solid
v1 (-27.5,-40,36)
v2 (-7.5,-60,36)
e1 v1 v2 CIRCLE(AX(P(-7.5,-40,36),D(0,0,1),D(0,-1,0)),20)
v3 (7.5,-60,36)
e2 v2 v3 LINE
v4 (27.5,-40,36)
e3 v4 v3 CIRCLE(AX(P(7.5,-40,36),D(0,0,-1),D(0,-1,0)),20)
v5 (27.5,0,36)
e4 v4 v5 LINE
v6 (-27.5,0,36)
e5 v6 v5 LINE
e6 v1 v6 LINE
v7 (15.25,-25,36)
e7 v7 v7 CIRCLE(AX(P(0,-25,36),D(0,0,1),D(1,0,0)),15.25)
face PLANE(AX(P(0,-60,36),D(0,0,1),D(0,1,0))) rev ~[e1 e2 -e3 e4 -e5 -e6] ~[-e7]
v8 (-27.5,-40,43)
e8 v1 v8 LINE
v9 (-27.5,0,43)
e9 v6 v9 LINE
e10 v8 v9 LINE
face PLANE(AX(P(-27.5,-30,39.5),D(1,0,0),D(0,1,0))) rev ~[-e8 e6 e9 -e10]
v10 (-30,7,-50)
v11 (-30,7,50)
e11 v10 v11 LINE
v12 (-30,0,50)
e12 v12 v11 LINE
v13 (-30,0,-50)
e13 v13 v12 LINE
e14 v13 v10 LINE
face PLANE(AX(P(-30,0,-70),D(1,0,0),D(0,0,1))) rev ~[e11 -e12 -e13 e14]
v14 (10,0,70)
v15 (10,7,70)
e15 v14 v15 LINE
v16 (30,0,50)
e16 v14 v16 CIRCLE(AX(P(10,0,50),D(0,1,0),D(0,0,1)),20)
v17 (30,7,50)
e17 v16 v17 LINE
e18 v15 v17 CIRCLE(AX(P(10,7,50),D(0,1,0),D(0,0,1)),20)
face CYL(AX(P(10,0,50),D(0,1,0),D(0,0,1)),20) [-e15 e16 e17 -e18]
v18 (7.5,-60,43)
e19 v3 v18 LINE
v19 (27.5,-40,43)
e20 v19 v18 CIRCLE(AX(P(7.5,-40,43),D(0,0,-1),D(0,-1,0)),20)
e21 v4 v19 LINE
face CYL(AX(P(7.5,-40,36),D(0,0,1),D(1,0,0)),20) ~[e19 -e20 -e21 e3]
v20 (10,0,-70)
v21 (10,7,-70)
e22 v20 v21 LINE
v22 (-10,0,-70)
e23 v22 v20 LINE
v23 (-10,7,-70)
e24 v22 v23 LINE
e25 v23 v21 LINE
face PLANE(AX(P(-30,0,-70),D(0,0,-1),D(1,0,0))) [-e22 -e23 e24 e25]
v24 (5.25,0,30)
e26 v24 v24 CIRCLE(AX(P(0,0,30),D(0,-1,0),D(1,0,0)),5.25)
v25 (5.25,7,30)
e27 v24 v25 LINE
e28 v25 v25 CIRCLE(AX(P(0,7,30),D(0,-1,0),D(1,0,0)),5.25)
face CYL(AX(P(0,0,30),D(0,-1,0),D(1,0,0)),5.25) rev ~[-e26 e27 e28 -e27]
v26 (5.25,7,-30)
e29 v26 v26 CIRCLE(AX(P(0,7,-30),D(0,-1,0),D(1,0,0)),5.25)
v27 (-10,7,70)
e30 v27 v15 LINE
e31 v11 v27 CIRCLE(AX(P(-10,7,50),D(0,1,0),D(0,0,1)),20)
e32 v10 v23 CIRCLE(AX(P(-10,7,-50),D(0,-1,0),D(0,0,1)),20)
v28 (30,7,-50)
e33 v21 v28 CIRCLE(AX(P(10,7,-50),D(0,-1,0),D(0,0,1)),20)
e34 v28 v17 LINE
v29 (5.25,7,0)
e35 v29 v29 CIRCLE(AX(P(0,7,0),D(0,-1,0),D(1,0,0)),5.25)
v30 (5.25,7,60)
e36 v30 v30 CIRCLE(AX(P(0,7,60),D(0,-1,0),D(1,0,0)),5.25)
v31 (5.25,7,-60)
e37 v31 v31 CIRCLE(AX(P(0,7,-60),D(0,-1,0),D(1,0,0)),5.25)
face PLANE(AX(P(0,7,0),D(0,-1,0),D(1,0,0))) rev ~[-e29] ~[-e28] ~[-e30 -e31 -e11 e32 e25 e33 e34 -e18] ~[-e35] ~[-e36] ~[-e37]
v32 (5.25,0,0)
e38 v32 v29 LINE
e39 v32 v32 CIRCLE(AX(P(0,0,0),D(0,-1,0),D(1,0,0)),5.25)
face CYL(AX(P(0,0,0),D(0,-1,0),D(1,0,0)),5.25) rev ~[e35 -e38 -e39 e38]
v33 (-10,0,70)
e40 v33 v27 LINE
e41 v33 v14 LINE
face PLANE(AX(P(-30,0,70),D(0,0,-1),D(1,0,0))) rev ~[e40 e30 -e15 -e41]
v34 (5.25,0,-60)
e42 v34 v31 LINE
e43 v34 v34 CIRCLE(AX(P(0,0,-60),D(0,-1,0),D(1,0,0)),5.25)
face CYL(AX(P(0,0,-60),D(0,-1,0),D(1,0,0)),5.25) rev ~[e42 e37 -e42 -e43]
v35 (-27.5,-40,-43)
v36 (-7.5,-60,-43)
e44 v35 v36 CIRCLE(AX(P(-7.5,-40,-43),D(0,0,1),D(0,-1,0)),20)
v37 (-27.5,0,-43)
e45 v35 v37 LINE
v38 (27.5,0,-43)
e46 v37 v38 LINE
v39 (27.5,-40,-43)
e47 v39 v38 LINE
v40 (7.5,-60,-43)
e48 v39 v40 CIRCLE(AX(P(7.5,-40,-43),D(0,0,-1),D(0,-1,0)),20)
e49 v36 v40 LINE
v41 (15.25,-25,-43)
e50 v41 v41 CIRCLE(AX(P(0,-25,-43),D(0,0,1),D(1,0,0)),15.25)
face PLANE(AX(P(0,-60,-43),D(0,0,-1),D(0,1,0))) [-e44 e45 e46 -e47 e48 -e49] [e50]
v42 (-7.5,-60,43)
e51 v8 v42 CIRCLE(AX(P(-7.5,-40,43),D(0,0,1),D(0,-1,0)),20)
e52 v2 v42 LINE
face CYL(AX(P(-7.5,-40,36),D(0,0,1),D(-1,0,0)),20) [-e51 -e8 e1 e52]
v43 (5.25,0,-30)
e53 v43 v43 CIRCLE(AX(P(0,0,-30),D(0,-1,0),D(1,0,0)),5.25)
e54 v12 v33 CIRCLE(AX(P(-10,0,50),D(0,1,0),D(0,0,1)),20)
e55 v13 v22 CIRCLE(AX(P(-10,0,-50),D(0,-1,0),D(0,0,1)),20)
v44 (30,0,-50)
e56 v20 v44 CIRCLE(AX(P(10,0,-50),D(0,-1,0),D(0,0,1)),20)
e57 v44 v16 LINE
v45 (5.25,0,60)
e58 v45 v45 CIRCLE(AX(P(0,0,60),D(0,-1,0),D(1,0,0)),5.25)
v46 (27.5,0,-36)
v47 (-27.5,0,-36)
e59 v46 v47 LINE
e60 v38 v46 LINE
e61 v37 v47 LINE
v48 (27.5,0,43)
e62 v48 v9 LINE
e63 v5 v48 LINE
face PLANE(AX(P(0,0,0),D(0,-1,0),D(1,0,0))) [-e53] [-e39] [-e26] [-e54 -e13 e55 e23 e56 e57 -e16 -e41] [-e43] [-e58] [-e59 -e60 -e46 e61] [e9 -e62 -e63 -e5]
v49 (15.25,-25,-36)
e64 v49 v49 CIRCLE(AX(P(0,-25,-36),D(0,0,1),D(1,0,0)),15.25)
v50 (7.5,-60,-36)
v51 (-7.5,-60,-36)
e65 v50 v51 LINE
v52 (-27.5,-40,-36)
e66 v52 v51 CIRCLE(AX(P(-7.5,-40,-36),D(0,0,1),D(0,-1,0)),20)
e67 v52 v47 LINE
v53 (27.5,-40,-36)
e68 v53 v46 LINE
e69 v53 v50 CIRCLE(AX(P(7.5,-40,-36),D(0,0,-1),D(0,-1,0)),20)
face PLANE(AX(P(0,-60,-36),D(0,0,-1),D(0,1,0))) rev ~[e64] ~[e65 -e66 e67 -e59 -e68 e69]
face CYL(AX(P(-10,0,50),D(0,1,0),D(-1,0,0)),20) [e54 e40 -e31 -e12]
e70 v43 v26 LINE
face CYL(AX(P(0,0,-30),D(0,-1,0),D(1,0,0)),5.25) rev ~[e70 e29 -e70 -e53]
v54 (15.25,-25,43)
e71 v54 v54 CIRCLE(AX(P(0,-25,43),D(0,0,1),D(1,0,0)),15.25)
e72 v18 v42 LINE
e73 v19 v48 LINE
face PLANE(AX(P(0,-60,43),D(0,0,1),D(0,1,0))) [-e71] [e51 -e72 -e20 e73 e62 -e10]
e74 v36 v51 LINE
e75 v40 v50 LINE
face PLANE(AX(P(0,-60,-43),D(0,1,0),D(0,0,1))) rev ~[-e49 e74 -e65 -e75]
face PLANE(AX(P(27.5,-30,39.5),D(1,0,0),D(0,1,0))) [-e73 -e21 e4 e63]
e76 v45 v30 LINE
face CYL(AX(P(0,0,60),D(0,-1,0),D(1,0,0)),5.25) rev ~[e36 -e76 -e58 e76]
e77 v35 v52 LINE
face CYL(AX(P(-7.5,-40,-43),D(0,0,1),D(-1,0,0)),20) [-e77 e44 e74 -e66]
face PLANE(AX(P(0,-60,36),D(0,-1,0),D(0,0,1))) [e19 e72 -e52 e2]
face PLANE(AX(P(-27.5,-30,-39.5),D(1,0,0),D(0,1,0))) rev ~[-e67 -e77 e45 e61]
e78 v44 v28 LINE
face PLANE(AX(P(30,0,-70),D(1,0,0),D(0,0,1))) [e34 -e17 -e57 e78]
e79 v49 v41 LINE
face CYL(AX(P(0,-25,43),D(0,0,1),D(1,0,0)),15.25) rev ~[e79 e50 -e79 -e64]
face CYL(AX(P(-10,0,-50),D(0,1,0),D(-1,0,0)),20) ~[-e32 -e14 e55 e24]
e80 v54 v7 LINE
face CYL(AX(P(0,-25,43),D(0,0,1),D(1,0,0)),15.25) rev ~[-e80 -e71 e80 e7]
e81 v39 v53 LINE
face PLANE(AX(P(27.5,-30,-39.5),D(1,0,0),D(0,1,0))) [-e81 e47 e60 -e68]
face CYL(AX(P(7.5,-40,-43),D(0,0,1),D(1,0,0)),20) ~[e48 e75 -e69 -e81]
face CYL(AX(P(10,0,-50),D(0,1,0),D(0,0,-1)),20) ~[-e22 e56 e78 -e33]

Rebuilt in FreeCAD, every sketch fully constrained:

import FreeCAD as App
import Part
import Sketcher
from FreeCAD import Vector


def edges_at(feature, points):
    """Names of the edges that pass closest to the given points."""
    edges = feature.Shape.Edges
    near = lambda p: min(range(len(edges)), key=lambda i: edges[i].distToShape(Part.Vertex(*p))[0])
    return sorted({f"Edge{near(p) + 1}" for p in points})


def add_polygon(sketch, points):
    """Adds a closed chain of lines whose ends are joined by coincident constraints."""
    first, n = sketch.GeometryCount, len(points)
    for a, b in zip(points, points[1:] + points[:1]):
        sketch.addGeometry(Part.LineSegment(App.Vector(*a, 0), App.Vector(*b, 0)), False)
    for i in range(n):
        sketch.addConstraint(Sketcher.Constraint("Coincident", first + i, 2, first + (i + 1) % n, 1))

doc = App.newDocument("Part")
body = doc.addObject("PartDesign::Body", "Body")

sketch1 = body.newObject("Sketcher::SketchObject", "Sketch")
sketch1.AttachmentSupport = (doc.getObject("XZ_Plane"), [""])
sketch1.MapMode = "FlatFace"
add_polygon(sketch1, [(-30, 70), (-30, -70), (30, -70), (30, 70)])
sketch1.addGeometry(Part.Circle(Vector(0, -60, 0), Vector(0, 0, 1), 5.25), False)
sketch1.addGeometry(Part.Circle(Vector(0, -30, 0), Vector(0, 0, 1), 5.25), False)
sketch1.addGeometry(Part.Circle(Vector(0, 0, 0), Vector(0, 0, 1), 5.25), False)
sketch1.addGeometry(Part.Circle(Vector(0, 30, 0), Vector(0, 0, 1), 5.25), False)
sketch1.addGeometry(Part.Circle(Vector(0, 60, 0), Vector(0, 0, 1), 5.25), False)
sketch1.addConstraint(Sketcher.Constraint("Vertical", 0))
sketch1.addConstraint(Sketcher.Constraint("Horizontal", 1))
sketch1.addConstraint(Sketcher.Constraint("Vertical", 2))
sketch1.addConstraint(Sketcher.Constraint("Horizontal", 3))
sketch1.addConstraint(Sketcher.Constraint("Coincident", 6, 3, -1, 1))
sketch1.addConstraint(Sketcher.Constraint("Equal", 4, 5))
sketch1.addConstraint(Sketcher.Constraint("Equal", 5, 6))
sketch1.addConstraint(Sketcher.Constraint("Equal", 6, 7))
sketch1.addConstraint(Sketcher.Constraint("Equal", 7, 8))
sketch1.addConstraint(Sketcher.Constraint("Symmetric", 5, 3, 7, 3, -1, 1))
sketch1.addConstraint(Sketcher.Constraint("Symmetric", 4, 3, 8, 3, -1, 1))
sketch1.addConstraint(Sketcher.Constraint("Symmetric", 0, 2, 2, 2, -1, 1))
sketch1.addConstraint(Sketcher.Constraint("PointOnObject", 4, 3, -2))
sketch1.addConstraint(Sketcher.Constraint("PointOnObject", 5, 3, -2))
sketch1.addConstraint(Sketcher.Constraint("Diameter", 4, 10.5))
sketch1.addConstraint(Sketcher.Constraint("DistanceX", 1, 1, 1, 2, 60.0))
sketch1.addConstraint(Sketcher.Constraint("DistanceY", 0, 2, 0, 1, 140.0))
sketch1.addConstraint(Sketcher.Constraint("DistanceY", 4, 3, -1, 1, 60.0))
sketch1.addConstraint(Sketcher.Constraint("DistanceY", 5, 3, -1, 1, 30.0))
pad1 = body.newObject("PartDesign::Pad", "Pad")
pad1.Profile = sketch1
pad1.Length = 7
pad1.Reversed = True

sketch2 = body.newObject("Sketcher::SketchObject", "Sketch001")
sketch2.AttachmentSupport = (doc.getObject("YZ_Plane"), [""])
sketch2.MapMode = "FlatFace"
add_polygon(sketch2, [(-60, 43), (-60, 36), (0, 36), (0, 43)])
add_polygon(sketch2, [(-60, -36), (-60, -43), (0, -43), (0, -36)])
sketch2.addConstraint(Sketcher.Constraint("Vertical", 0))
sketch2.addConstraint(Sketcher.Constraint("Horizontal", 1))
sketch2.addConstraint(Sketcher.Constraint("Vertical", 2))
sketch2.addConstraint(Sketcher.Constraint("Horizontal", 3))
sketch2.addConstraint(Sketcher.Constraint("Vertical", 4))
sketch2.addConstraint(Sketcher.Constraint("Horizontal", 5))
sketch2.addConstraint(Sketcher.Constraint("Vertical", 6))
sketch2.addConstraint(Sketcher.Constraint("Horizontal", 7))
sketch2.addConstraint(Sketcher.Constraint("Symmetric", 2, 2, 5, 2, -1, 1))
sketch2.addConstraint(Sketcher.Constraint("Symmetric", 1, 2, 6, 2, -1))
sketch2.addConstraint(Sketcher.Constraint("Vertical", 3, 2, 4, 2))
sketch2.addConstraint(Sketcher.Constraint("DistanceX", 1, 1, 1, 2, 60.0))
sketch2.addConstraint(Sketcher.Constraint("DistanceY", 0, 2, 0, 1, 7.0))
sketch2.addConstraint(Sketcher.Constraint("DistanceY", -1, 1, 0, 2, 36.0))
pad2 = body.newObject("PartDesign::Pad", "Pad001")
pad2.Profile = sketch2
pad2.Length = 55
pad2.Midplane = True

sketch3 = body.newObject("Sketcher::SketchObject", "Sketch002")
sketch3.AttachmentSupport = (doc.getObject("XY_Plane"), [""])
sketch3.MapMode = "FlatFace"
sketch3.AttachmentOffset = App.Placement(Vector(0, 0, 43), App.Rotation())
sketch3.addGeometry(Part.Circle(Vector(0, -25, 0), Vector(0, 0, 1), 15.25), False)
sketch3.addConstraint(Sketcher.Constraint("PointOnObject", 0, 3, -2))
sketch3.addConstraint(Sketcher.Constraint("Diameter", 0, 30.5))
sketch3.addConstraint(Sketcher.Constraint("DistanceY", 0, 3, -1, 1, 25.0))
pocket1 = body.newObject("PartDesign::Pocket", "Pocket")
pocket1.Profile = sketch3
pocket1.Type = "ThroughAll"
doc.recompute()

fillet = body.newObject("PartDesign::Fillet", "Fillet")
fillet.Base = (pocket1, edges_at(pocket1, [
    (-30, 3.5, 70),
    (30, 3.5, 70),
    (-27.5, -60, 39.5),
    (27.5, -60, 39.5),
    (-27.5, -60, -39.5),
    (27.5, -60, -39.5),
    (-30, 3.5, -70),
    (30, 3.5, -70),
]))
fillet.Radius = 20

doc.recompute()
